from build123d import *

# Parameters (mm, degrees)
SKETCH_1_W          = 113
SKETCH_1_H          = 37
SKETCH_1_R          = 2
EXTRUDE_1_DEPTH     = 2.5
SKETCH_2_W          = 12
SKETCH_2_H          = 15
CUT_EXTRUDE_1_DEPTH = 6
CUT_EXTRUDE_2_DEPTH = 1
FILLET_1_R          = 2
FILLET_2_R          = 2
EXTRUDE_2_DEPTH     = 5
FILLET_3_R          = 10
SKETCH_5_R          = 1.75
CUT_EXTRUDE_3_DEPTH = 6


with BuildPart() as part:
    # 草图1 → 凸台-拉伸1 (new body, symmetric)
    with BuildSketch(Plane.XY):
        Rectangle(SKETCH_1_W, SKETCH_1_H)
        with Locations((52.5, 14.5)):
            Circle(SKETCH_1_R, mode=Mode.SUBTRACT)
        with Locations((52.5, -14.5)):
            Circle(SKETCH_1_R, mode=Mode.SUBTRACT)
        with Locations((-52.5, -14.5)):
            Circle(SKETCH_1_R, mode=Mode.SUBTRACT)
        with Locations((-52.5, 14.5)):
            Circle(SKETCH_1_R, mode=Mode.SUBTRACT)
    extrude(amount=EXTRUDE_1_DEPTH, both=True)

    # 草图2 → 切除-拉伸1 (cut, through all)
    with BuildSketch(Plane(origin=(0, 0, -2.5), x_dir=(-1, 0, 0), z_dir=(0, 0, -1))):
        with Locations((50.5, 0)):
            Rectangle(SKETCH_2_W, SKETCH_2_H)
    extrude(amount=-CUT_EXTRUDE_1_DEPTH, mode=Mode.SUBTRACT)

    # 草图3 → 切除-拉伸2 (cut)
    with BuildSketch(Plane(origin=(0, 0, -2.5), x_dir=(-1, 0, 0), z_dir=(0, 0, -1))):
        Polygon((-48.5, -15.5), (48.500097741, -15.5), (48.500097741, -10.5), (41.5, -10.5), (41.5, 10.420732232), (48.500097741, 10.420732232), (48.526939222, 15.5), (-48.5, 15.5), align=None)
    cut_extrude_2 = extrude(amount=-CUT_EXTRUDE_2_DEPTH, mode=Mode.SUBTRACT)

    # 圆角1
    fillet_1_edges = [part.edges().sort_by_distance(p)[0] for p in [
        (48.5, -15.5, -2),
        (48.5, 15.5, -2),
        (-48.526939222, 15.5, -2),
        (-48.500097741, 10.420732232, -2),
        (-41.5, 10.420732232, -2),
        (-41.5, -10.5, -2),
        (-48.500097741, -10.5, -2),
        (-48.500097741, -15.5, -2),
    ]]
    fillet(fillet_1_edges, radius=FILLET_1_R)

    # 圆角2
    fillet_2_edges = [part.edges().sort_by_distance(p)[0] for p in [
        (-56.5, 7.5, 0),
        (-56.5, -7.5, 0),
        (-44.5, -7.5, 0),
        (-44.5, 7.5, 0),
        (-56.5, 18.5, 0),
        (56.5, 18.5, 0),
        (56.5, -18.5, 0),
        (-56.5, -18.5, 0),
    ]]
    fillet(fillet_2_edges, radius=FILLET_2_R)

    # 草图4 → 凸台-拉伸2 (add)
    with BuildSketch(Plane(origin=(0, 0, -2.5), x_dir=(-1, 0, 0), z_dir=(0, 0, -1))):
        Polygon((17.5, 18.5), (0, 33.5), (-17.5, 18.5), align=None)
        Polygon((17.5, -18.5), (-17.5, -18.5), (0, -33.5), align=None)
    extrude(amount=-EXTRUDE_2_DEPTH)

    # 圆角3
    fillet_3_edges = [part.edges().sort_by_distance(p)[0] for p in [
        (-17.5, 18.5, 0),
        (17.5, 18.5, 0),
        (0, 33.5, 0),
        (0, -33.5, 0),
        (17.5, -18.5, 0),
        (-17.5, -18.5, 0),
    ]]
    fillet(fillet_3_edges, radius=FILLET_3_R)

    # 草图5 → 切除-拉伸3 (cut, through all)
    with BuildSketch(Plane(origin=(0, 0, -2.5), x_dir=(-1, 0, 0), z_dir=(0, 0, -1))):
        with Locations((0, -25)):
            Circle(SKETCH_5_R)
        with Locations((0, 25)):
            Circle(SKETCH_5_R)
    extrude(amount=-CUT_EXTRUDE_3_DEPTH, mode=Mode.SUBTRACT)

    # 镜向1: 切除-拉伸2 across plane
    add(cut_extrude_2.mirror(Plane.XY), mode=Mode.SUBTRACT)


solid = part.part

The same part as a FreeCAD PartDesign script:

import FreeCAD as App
import Part
import Sketcher
from FreeCAD import Vector


def edges_at(feature, points):
    """Names of the edges that pass closest to the given points."""
    edges = feature.Shape.Edges
    near = lambda p: min(range(len(edges)), key=lambda i: edges[i].distToShape(Part.Vertex(*p))[0])
    return sorted({f"Edge{near(p) + 1}" for p in points})

doc = App.newDocument("Part")
body = doc.addObject("PartDesign::Body", "Body")

# Sketch on XY plane
sketch1 = body.newObject("Sketcher::SketchObject", "Sketch")
sketch1.AttachmentSupport = (doc.getObject("XY_Plane"), [""])
sketch1.MapMode = "FlatFace"
sketch1.addGeometry([
    Part.LineSegment(Vector(-56.5, 18.5, 0), Vector(-56.5, -18.5, 0)),  # 0
    Part.LineSegment(Vector(-56.5, -18.5, 0), Vector(56.5, -18.5, 0)),  # 1
    Part.LineSegment(Vector(56.5, -18.5, 0), Vector(56.5, 18.5, 0)),  # 2
    Part.LineSegment(Vector(56.5, 18.5, 0), Vector(-56.5, 18.5, 0)),  # 3
    Part.Circle(Vector(-52.5, -14.5, 0), Vector(0, 0, 1), 2),  # 4
    Part.Circle(Vector(52.5, -14.5, 0), Vector(0, 0, 1), 2),  # 5
    Part.Circle(Vector(-52.5, 14.5, 0), Vector(0, 0, 1), 2),  # 6
    Part.Circle(Vector(52.5, 14.5, 0), Vector(0, 0, 1), 2),  # 7
], False)
sketch1.addConstraint([
    Sketcher.Constraint("Coincident", 0, 2, 1, 1),
    Sketcher.Constraint("Coincident", 1, 2, 2, 1),
    Sketcher.Constraint("Coincident", 2, 2, 3, 1),
    Sketcher.Constraint("Coincident", 3, 2, 0, 1),
    Sketcher.Constraint("Vertical", 0),
    Sketcher.Constraint("Horizontal", 1),
    Sketcher.Constraint("Vertical", 2),
    Sketcher.Constraint("Horizontal", 3),
    Sketcher.Constraint("Equal", 4, 5),
    Sketcher.Constraint("Equal", 5, 6),
    Sketcher.Constraint("Equal", 6, 7),
    Sketcher.Constraint("Symmetric", 5, 3, 6, 3, -1, 1),
    Sketcher.Constraint("Symmetric", 4, 3, 7, 3, -1, 1),
    Sketcher.Constraint("Symmetric", 0, 2, 2, 2, -1, 1),
    Sketcher.Constraint("Symmetric", 4, 3, 5, 3, -2),
    Sketcher.Constraint("Diameter", 4, 4.0),
    Sketcher.Constraint("DistanceX", 1, 1, 1, 2, 113.0),
    Sketcher.Constraint("DistanceY", 0, 2, 0, 1, 37.0),
    Sketcher.Constraint("DistanceX", 4, 3, 5, 3, 105.0),
    Sketcher.Constraint("DistanceY", 4, 3, 6, 3, 29.0),
])
pad1 = body.newObject("PartDesign::Pad", "Pad")
pad1.Profile = sketch1
pad1.Length = 5
pad1.Midplane = True

# Sketch on XY plane
sketch2 = body.newObject("Sketcher::SketchObject", "Sketch001")
sketch2.AttachmentSupport = (doc.getObject("XY_Plane"), [""])
sketch2.MapMode = "FlatFace"
sketch2.AttachmentOffset = App.Placement(Vector(0, 0, -2.5), App.Rotation())
sketch2.addGeometry([
    Part.LineSegment(Vector(-44, 8, 0), Vector(-44, -8, 0)),
    Part.LineSegment(Vector(-44, -8, 0), Vector(-56, -8, 0)),
    Part.LineSegment(Vector(-56, -8, 0), Vector(-56, 8, 0)),
    Part.LineSegment(Vector(-56, 8, 0), Vector(-44, 8, 0)),
], False)
sketch2.addConstraint([
    Sketcher.Constraint("Coincident", 0, 2, 1, 1),
    Sketcher.Constraint("Coincident", 1, 2, 2, 1),
    Sketcher.Constraint("Coincident", 2, 2, 3, 1),
    Sketcher.Constraint("Coincident", 3, 2, 0, 1),
    Sketcher.Constraint("Vertical", 0),
    Sketcher.Constraint("Horizontal", 1),
    Sketcher.Constraint("Vertical", 2),
    Sketcher.Constraint("Horizontal", 3),
    Sketcher.Constraint("DistanceX", 1, 2, 1, 1, 12.0),
    Sketcher.Constraint("DistanceY", 0, 2, 0, 1, 15.0),
    Sketcher.Constraint("DistanceX", 0, 2, -1, 1, 44.5),
    Sketcher.Constraint("DistanceY", 0, 2, -1, 1, 7.5),
])
pocket1 = body.newObject("PartDesign::Pocket", "Pocket")
pocket1.Profile = sketch2
pocket1.Type = "ThroughAll"
pocket1.Reversed = True

# Sketch on XY plane
sketch3 = body.newObject("Sketcher::SketchObject", "Sketch002")
sketch3.AttachmentSupport = (doc.getObject("XY_Plane"), [""])
sketch3.MapMode = "FlatFace"
sketch3.AttachmentOffset = App.Placement(Vector(0, 0, -2.5), App.Rotation())
sketch3.addGeometry([
    Part.LineSegment(Vector(48, -16, 0), Vector(-49, -16, 0)),  # 0
    Part.LineSegment(Vector(-49, -16, 0), Vector(-49, -10, 0)),  # 1
    Part.LineSegment(Vector(-49, -10, 0), Vector(-42, -10, 0)),  # 2
    Part.LineSegment(Vector(-42, -10, 0), Vector(-42, 10, 0)),  # 3
    Part.LineSegment(Vector(-42, 10, 0), Vector(-49, 10, 0)),  # 4
    Part.LineSegment(Vector(-49, 10, 0), Vector(-49, 16, 0)),  # 5
    Part.LineSegment(Vector(-49, 16, 0), Vector(48, 16, 0)),  # 6
    Part.LineSegment(Vector(48, 16, 0), Vector(48, -16, 0)),  # 7
], False)
sketch3.addConstraint([
    Sketcher.Constraint("Coincident", 0, 2, 1, 1),
    Sketcher.Constraint("Coincident", 1, 2, 2, 1),
    Sketcher.Constraint("Coincident", 2, 2, 3, 1),
    Sketcher.Constraint("Coincident", 3, 2, 4, 1),
    Sketcher.Constraint("Coincident", 4, 2, 5, 1),
    Sketcher.Constraint("Coincident", 5, 2, 6, 1),
    Sketcher.Constraint("Coincident", 6, 2, 7, 1),
    Sketcher.Constraint("Coincident", 7, 2, 0, 1),
    Sketcher.Constraint("Horizontal", 0),
    Sketcher.Constraint("Vertical", 1),
    Sketcher.Constraint("Horizontal", 2),
    Sketcher.Constraint("Vertical", 3),
    Sketcher.Constraint("Horizontal", 4),
    Sketcher.Constraint("Horizontal", 6),
    Sketcher.Constraint("Vertical", 7),
    Sketcher.Constraint("Vertical", 1, 2, 4, 2),
    Sketcher.Constraint("DistanceY", 1, 1, 1, 2, 5.0),
    Sketcher.Constraint("DistanceY", 7, 2, 7, 1, 31.0),
    Sketcher.Constraint("DistanceX", 3, 2, 6, 2, 90.0),
    Sketcher.Constraint("DistanceY", 0, 2, -1, 1, 15.5),
    Sketcher.Constraint("DistanceX", 2, 2, -1, 1, 41.5),
    Sketcher.Constraint("DistanceX", 6, 1, 6, 2, 97.026939),
    Sketcher.Constraint("Distance", 5, 5.079339),
    Sketcher.Constraint("DistanceX", 0, 2, 0, 1, 97.000098),
])
pocket2 = body.newObject("PartDesign::Pocket", "Pocket001")
pocket2.Profile = sketch3
pocket2.Length = 1
pocket2.Reversed = True
doc.recompute()

fillet = body.newObject("PartDesign::Fillet", "Fillet")
fillet.Base = (pocket2, edges_at(pocket2, [
    (48.5, -15.5, -2),
    (48.5, 15.5, -2),
    (-48.527, 15.5, -2),
    (-48.5, 10.421, -2),
    (-41.5, 10.421, -2),
    (-41.5, -10.5, -2),
    (-48.5, -10.5, -2),
    (-48.5, -15.5, -2),
]))
fillet.Radius = 2
doc.recompute()

fillet2 = body.newObject("PartDesign::Fillet", "Fillet001")
fillet2.Base = (fillet, edges_at(fillet, [
    (-56.5, 7.5, 0),
    (-56.5, -7.5, 0),
    (-44.5, -7.5, 0),
    (-44.5, 7.5, 0),
    (-56.5, 18.5, 0),
    (56.5, 18.5, 0),
    (56.5, -18.5, 0),
    (-56.5, -18.5, 0),
]))
fillet2.Radius = 2

# Sketch on XY plane
sketch4 = body.newObject("Sketcher::SketchObject", "Sketch003")
sketch4.AttachmentSupport = (doc.getObject("XY_Plane"), [""])
sketch4.MapMode = "FlatFace"
sketch4.AttachmentOffset = App.Placement(Vector(0, 0, -2.5), App.Rotation())
sketch4.addGeometry([
    Part.LineSegment(Vector(-18, 18, 0), Vector(0, 34, 0)),  # 0
    Part.LineSegment(Vector(0, 34, 0), Vector(18, 18, 0)),  # 1
    Part.LineSegment(Vector(18, 18, 0), Vector(-18, 18, 0)),  # 2
    Part.LineSegment(Vector(-18, -18, 0), Vector(18, -18, 0)),  # 3
    Part.LineSegment(Vector(18, -18, 0), Vector(0, -34, 0)),  # 4
    Part.LineSegment(Vector(0, -34, 0), Vector(-18, -18, 0)),  # 5
], False)
sketch4.addConstraint([
    Sketcher.Constraint("Coincident", 0, 2, 1, 1),
    Sketcher.Constraint("Coincident", 1, 2, 2, 1),
    Sketcher.Constraint("Coincident", 2, 2, 0, 1),
    Sketcher.Constraint("Coincident", 3, 2, 4, 1),
    Sketcher.Constraint("Coincident", 4, 2, 5, 1),
    Sketcher.Constraint("Coincident", 5, 2, 3, 1),
    Sketcher.Constraint("Horizontal", 2),
    Sketcher.Constraint("Horizontal", 3),
    Sketcher.Constraint("Symmetric", 2, 2, 3, 2, -1, 1),
    Sketcher.Constraint("Symmetric", 0, 2, 4, 2, -1, 1),
    Sketcher.Constraint("PointOnObject", 0, 2, -2),
    Sketcher.Constraint("Parallel", 1, 5),
    Sketcher.Constraint("Vertical", 1, 2, 3, 2),
    Sketcher.Constraint("DistanceX", 2, 2, 2, 1, 35.0),
    Sketcher.Constraint("DistanceY", 1, 2, 0, 2, 15.0),
    Sketcher.Constraint("DistanceY", 3, 2, 1, 2, 37.0),
])
pad2 = body.newObject("PartDesign::Pad", "Pad001")
pad2.Profile = sketch4
pad2.Length = 5
doc.recompute()

fillet3 = body.newObject("PartDesign::Fillet", "Fillet002")
fillet3.Base = (pad2, edges_at(pad2, [
    (-17.5, 18.5, 0),
    (17.5, 18.5, 0),
    (0, 33.5, 0),
    (0, -33.5, 0),
    (17.5, -18.5, 0),
    (-17.5, -18.5, 0),
]))
fillet3.Radius = 10

# Sketch on XY plane
sketch5 = body.newObject("Sketcher::SketchObject", "Sketch004")
sketch5.AttachmentSupport = (doc.getObject("XY_Plane"), [""])
sketch5.MapMode = "FlatFace"
sketch5.AttachmentOffset = App.Placement(Vector(0, 0, -2.5), App.Rotation())
sketch5.addGeometry([
    Part.Circle(Vector(0, -25, 0), Vector(0, 0, 1), 1.8),
    Part.Circle(Vector(0, 25, 0), Vector(0, 0, 1), 1.8),
], False)
sketch5.addConstraint([
    Sketcher.Constraint("Equal", 0, 1),
    Sketcher.Constraint("Symmetric", 0, 3, 1, 3, -1, 1),
    Sketcher.Constraint("PointOnObject", 0, 3, -2),
    Sketcher.Constraint("Diameter", 0, 3.5),
    Sketcher.Constraint("DistanceY", 0, 3, -1, 1, 25.0),
])
pocket3 = body.newObject("PartDesign::Pocket", "Pocket002")
pocket3.Profile = sketch5
pocket3.Type = "ThroughAll"
pocket3.Reversed = True
doc.recompute()

mirrored = body.newObject("PartDesign::Mirrored", "Mirrored")
mirrored.Originals = [pocket2]
mirrored.MirrorPlane = (doc.getObject("XY_Plane"), [""])
body.Tip = mirrored

doc.recompute()
